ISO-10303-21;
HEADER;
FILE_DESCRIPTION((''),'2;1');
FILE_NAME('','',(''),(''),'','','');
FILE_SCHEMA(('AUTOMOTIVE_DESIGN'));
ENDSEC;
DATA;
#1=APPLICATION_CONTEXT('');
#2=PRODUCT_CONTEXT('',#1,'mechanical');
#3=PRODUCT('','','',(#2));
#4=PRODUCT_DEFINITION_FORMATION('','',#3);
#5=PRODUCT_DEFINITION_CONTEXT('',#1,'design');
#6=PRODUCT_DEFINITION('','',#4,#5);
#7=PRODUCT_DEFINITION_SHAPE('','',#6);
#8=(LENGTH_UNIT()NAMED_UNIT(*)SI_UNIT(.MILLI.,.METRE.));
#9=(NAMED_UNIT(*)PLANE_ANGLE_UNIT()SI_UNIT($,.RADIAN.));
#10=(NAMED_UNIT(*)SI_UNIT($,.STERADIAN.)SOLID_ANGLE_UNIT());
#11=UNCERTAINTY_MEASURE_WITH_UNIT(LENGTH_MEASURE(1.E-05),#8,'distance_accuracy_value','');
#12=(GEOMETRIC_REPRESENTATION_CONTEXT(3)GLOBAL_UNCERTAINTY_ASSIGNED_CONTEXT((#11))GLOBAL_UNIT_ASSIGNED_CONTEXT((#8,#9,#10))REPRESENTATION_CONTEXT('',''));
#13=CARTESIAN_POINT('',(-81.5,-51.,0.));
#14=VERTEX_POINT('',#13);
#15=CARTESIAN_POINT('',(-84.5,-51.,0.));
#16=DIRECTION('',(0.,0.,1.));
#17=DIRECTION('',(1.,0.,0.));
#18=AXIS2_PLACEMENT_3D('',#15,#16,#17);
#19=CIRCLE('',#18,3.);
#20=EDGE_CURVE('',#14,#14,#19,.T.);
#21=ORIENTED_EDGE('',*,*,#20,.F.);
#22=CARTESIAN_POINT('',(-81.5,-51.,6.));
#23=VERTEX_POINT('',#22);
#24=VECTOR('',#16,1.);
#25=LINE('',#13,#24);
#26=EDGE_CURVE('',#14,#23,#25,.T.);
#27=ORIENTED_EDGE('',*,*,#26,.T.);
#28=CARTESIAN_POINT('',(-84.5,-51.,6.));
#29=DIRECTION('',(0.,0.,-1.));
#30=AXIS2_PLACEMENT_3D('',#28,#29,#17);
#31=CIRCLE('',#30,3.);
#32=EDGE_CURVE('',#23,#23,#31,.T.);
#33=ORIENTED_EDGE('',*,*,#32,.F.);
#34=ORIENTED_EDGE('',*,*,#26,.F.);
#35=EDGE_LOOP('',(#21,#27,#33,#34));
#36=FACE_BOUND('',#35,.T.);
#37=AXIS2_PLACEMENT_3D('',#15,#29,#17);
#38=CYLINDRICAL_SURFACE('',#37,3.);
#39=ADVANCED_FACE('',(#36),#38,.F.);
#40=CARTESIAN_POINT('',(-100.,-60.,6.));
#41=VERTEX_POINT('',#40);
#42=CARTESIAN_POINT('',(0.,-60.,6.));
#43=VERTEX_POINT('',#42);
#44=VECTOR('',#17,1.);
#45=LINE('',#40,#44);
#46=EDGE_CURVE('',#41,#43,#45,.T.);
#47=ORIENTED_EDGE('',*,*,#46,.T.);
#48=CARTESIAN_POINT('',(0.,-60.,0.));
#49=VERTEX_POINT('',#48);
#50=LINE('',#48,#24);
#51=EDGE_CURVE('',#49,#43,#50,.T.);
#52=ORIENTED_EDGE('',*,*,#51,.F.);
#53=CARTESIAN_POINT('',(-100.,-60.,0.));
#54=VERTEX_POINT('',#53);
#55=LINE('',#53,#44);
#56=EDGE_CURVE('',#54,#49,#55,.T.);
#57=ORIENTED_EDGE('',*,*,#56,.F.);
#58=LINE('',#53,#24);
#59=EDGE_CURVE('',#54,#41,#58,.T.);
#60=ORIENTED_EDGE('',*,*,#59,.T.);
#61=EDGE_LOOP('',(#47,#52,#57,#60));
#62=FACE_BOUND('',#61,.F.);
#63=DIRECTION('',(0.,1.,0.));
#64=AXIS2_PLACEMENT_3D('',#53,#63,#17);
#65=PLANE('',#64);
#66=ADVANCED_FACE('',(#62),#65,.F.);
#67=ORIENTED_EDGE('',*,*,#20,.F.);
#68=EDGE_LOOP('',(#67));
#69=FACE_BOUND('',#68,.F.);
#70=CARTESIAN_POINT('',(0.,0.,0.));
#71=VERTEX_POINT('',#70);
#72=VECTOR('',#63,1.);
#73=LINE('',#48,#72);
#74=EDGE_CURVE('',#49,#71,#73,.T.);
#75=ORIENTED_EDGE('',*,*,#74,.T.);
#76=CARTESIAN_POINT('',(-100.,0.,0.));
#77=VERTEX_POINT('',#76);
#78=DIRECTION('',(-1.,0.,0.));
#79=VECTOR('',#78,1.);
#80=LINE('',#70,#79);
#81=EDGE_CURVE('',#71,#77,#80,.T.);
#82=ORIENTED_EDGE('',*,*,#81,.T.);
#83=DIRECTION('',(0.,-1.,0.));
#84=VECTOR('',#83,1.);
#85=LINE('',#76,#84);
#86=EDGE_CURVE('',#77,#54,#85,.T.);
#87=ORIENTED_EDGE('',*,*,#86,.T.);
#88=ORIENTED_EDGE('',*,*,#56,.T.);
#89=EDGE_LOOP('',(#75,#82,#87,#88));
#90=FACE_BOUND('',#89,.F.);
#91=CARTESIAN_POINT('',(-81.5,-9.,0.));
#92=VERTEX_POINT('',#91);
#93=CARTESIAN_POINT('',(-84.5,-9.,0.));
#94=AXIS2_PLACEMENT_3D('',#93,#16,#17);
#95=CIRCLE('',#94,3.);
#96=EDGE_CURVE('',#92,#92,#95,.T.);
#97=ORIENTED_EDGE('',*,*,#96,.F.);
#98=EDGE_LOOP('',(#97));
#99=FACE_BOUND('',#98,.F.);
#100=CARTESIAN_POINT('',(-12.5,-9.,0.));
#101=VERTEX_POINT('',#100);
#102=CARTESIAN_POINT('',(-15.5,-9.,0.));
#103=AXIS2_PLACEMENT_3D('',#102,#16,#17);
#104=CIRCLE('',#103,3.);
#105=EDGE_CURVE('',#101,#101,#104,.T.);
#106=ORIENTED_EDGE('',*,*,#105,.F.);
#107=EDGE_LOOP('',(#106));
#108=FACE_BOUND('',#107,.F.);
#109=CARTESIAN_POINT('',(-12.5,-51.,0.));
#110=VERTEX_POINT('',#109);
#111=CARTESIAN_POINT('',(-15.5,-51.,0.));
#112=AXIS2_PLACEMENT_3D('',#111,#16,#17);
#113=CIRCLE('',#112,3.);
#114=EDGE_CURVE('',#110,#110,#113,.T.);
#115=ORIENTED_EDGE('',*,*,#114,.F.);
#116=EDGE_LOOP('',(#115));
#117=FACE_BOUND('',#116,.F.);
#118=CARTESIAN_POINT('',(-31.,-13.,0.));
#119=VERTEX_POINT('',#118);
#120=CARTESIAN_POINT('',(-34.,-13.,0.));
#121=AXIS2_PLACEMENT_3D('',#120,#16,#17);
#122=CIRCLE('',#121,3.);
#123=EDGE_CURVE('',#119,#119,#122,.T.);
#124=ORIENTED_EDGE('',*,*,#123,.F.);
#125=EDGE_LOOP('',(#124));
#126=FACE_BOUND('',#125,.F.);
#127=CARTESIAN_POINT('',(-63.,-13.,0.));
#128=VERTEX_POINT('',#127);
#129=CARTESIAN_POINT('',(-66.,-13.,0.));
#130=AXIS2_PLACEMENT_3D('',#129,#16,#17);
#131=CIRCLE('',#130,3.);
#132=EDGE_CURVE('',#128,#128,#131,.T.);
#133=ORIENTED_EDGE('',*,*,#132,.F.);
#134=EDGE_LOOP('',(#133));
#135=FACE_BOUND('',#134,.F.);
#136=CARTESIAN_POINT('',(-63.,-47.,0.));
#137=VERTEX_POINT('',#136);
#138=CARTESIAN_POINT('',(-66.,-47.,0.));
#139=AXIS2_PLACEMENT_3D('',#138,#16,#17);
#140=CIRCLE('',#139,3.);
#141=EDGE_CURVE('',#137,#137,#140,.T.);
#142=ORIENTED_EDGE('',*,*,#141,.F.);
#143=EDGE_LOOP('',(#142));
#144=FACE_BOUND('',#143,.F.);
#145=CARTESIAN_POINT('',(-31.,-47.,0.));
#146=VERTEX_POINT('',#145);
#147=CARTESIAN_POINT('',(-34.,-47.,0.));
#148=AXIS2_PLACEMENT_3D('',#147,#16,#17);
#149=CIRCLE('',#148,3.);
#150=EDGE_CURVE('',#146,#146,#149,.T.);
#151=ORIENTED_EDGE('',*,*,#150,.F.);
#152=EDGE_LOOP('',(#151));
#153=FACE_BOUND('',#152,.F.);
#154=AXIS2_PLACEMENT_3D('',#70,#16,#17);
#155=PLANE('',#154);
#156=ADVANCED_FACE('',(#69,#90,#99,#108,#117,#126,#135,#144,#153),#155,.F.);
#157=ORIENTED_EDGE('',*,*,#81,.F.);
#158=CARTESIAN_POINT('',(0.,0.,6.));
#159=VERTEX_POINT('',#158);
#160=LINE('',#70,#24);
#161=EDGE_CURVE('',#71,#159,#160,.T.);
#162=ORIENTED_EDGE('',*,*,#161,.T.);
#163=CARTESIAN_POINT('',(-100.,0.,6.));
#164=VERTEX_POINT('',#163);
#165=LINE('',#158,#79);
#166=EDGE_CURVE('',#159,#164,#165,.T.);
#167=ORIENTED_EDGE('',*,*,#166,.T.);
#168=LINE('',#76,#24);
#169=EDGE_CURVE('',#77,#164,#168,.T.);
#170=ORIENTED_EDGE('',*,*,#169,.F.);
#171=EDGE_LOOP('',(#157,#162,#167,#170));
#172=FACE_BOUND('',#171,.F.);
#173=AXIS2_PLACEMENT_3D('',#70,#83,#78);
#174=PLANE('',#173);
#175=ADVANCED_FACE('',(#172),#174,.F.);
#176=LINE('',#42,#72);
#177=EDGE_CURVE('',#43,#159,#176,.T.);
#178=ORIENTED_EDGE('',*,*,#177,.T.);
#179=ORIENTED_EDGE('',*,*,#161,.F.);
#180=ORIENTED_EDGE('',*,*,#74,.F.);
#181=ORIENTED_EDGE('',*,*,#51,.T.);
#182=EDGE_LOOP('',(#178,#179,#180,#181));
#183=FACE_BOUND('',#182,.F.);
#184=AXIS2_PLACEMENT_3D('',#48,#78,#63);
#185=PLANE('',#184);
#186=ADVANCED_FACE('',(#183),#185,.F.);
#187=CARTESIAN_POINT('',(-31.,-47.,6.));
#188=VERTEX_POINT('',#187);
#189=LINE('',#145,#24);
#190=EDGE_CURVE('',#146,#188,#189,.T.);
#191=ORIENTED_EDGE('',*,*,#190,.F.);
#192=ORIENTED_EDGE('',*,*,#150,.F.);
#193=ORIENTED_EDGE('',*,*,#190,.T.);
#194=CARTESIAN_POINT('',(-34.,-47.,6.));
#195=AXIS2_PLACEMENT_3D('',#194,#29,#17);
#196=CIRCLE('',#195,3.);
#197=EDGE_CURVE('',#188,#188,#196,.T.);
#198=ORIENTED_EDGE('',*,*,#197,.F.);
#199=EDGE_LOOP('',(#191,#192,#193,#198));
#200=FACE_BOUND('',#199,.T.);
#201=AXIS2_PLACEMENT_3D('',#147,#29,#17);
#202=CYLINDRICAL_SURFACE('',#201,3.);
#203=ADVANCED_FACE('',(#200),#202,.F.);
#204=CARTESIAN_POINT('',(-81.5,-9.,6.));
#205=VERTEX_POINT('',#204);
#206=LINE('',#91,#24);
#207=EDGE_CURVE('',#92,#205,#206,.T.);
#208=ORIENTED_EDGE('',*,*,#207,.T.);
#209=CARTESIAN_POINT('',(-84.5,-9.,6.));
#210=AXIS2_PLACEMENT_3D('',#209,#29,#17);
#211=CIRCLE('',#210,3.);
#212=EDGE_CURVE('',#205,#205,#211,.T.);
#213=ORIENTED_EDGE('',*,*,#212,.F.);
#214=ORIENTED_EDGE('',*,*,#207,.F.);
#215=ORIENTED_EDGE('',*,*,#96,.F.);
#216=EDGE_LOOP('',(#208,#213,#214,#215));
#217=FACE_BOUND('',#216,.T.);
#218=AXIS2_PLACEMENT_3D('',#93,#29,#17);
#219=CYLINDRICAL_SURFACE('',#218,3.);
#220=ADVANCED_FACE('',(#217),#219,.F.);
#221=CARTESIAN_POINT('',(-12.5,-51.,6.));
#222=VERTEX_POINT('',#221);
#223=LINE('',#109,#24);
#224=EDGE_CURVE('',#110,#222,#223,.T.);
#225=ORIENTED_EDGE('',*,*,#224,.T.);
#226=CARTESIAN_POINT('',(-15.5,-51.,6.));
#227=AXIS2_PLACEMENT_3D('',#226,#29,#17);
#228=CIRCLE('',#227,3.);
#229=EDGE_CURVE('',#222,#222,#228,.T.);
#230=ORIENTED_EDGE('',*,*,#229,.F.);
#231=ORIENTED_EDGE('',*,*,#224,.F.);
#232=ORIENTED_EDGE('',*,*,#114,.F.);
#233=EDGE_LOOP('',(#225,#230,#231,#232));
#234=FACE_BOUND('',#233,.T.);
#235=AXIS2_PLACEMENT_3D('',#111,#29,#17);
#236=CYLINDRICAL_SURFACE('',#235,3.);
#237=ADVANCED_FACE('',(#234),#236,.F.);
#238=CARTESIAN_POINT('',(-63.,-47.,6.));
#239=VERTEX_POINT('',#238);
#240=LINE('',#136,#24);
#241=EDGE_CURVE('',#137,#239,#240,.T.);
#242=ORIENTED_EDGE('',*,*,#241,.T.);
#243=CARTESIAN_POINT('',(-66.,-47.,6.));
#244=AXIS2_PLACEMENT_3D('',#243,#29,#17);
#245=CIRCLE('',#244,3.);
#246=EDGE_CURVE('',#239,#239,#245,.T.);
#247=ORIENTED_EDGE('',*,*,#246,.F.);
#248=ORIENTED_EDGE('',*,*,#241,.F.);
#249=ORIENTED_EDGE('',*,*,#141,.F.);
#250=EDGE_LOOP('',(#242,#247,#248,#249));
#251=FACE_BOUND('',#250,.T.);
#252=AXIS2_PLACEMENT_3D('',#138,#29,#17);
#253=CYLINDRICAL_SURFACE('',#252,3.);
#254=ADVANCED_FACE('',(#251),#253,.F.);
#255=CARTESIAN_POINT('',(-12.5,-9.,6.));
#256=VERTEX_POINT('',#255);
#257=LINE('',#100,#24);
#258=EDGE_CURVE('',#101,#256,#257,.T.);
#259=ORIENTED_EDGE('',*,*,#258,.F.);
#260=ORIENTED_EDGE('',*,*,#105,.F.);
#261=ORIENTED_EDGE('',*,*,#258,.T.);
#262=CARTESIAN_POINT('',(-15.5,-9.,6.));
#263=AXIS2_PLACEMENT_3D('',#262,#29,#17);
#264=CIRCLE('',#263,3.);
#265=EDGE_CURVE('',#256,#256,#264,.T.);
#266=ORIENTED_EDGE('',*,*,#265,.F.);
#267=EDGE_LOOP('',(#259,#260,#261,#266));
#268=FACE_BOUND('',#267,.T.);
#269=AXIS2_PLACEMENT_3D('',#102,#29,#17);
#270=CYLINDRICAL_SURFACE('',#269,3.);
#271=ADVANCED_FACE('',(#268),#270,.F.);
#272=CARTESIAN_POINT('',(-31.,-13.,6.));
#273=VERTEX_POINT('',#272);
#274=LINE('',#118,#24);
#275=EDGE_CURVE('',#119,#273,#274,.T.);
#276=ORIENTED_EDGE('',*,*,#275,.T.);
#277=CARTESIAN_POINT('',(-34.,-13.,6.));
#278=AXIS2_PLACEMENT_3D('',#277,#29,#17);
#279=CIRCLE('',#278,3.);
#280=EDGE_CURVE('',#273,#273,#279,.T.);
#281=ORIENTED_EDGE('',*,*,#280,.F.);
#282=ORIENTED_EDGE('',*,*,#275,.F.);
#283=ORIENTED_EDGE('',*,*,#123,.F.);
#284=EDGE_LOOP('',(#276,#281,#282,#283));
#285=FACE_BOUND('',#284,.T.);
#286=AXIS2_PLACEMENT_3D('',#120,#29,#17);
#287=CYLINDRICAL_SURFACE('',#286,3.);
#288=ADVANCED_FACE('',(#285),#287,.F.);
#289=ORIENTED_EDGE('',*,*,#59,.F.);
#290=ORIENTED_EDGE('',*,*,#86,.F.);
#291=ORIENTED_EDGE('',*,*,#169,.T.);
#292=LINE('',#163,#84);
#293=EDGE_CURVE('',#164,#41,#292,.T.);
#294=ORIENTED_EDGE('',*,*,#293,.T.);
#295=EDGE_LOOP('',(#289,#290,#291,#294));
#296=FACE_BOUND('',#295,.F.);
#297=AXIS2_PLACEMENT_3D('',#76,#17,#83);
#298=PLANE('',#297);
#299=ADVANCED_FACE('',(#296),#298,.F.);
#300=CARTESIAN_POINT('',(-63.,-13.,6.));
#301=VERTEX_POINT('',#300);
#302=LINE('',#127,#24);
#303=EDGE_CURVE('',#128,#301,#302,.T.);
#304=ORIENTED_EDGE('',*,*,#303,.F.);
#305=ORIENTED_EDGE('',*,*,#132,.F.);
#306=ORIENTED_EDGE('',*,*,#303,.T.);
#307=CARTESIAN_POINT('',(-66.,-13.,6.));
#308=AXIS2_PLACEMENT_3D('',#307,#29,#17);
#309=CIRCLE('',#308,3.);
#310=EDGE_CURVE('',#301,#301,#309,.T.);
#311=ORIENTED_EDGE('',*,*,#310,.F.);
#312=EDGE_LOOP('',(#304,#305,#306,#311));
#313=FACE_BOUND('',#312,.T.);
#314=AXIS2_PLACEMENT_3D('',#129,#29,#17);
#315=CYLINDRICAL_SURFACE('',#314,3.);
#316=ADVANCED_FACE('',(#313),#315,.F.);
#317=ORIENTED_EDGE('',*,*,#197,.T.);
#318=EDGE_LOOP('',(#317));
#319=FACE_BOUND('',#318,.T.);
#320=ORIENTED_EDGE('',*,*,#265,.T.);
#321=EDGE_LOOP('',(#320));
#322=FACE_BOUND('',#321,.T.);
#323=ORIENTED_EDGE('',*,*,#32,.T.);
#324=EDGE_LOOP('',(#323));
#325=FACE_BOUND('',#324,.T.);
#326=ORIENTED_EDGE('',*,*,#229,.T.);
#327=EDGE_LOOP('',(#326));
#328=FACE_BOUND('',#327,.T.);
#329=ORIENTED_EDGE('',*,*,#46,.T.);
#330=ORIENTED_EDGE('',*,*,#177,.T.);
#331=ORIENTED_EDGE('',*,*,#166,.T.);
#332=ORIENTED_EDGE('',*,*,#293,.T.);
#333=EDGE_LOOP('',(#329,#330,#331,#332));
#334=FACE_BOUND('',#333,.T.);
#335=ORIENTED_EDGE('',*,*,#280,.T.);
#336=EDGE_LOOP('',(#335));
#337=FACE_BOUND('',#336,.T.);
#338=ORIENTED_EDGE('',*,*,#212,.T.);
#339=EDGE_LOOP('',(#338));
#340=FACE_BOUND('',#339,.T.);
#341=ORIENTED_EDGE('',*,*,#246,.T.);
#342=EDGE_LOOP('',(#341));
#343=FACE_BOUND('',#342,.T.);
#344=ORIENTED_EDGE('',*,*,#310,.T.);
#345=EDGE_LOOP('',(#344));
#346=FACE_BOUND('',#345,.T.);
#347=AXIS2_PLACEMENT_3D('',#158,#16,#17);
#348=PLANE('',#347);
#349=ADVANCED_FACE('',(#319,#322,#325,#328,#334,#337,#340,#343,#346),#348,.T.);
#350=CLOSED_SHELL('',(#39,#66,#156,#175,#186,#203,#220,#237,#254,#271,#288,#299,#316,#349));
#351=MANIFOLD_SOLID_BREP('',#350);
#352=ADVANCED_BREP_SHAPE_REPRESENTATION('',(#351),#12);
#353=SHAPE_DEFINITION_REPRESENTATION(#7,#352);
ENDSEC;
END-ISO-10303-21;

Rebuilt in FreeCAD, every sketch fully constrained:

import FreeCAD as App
import Part
import Sketcher


def add_polygon(sketch, points):
    """Adds a closed chain of lines whose ends are joined by coincident constraints."""
    first, n = sketch.GeometryCount, len(points)
    for a, b in zip(points, points[1:] + points[:1]):
        sketch.addGeometry(Part.LineSegment(App.Vector(*a, 0), App.Vector(*b, 0)), False)
    for i in range(n):
        sketch.addConstraint(Sketcher.Constraint("Coincident", first + i, 2, first + (i + 1) % n, 1))

doc = App.newDocument("Part")
params = doc.addObject("Spreadsheet::Sheet", "Params")
for row, (alias, value) in enumerate([
    ("sketch1_diameter", "6 mm"),
    ("sketch1_width", "100 mm"),
    ("sketch1_height", "60 mm"),
    ("pad1_length", "6 mm"),
], start=1):
    params.set(f"A{row}", alias)
    params.set(f"B{row}", "=" + value)
    params.setAlias(f"B{row}", alias)

body = doc.addObject("PartDesign::Body", "Body")

sketch1 = body.newObject("Sketcher::SketchObject", "Sketch")
sketch1.AttachmentSupport = (doc.getObject("XY_Plane"), [""])
sketch1.MapMode = "FlatFace"
add_polygon(sketch1, [(0, -60), (0, 0), (-100, 0), (-100, -60)])
sketch1.addGeometry(Part.Circle(App.Vector(-15.5, -9, 0), App.Vector(0, 0, 1), 3), False)
sketch1.addGeometry(Part.Circle(App.Vector(-84.5, -9, 0), App.Vector(0, 0, 1), 3), False)
sketch1.addGeometry(Part.Circle(App.Vector(-84.5, -51, 0), App.Vector(0, 0, 1), 3), False)
sketch1.addGeometry(Part.Circle(App.Vector(-15.5, -51, 0), App.Vector(0, 0, 1), 3), False)
sketch1.addGeometry(Part.Circle(App.Vector(-66, -47, 0), App.Vector(0, 0, 1), 3), False)
sketch1.addGeometry(Part.Circle(App.Vector(-34, -47, 0), App.Vector(0, 0, 1), 3), False)
sketch1.addGeometry(Part.Circle(App.Vector(-34, -13, 0), App.Vector(0, 0, 1), 3), False)
sketch1.addGeometry(Part.Circle(App.Vector(-66, -13, 0), App.Vector(0, 0, 1), 3), False)
sketch1.addConstraint([
    Sketcher.Constraint("Vertical", 0),
    Sketcher.Constraint("Horizontal", 1),
    Sketcher.Constraint("Vertical", 2),
    Sketcher.Constraint("Horizontal", 3),
    Sketcher.Constraint("Coincident", 0, 2, -1, 1),
    Sketcher.Constraint("Equal", 4, 5),
    Sketcher.Constraint("Equal", 5, 6),
    Sketcher.Constraint("Equal", 6, 7),
    Sketcher.Constraint("Equal", 7, 8),
    Sketcher.Constraint("Equal", 8, 9),
    Sketcher.Constraint("Equal", 9, 10),
    Sketcher.Constraint("Equal", 10, 11),
    Sketcher.Constraint("Horizontal", 4, 3, 5, 3),
    Sketcher.Constraint("Horizontal", 6, 3, 7, 3),
    Sketcher.Constraint("Horizontal", 8, 3, 9, 3),
    Sketcher.Constraint("Horizontal", 10, 3, 11, 3),
    Sketcher.Constraint("Vertical", 5, 3, 6, 3),
    Sketcher.Constraint("Vertical", 4, 3, 7, 3),
    Sketcher.Constraint("Vertical", 9, 3, 10, 3),
    Sketcher.Constraint("Vertical", 8, 3, 11, 3),
    Sketcher.Constraint("Diameter", 4, 6.0),
    Sketcher.Constraint("DistanceX", 1, 2, 1, 1, 100.0),
    Sketcher.Constraint("DistanceY", 0, 1, 0, 2, 60.0),
    Sketcher.Constraint("DistanceY", 4, 3, -1, 1, 9.0),
    Sketcher.Constraint("DistanceX", 9, 3, -1, 1, 34.0),
    Sketcher.Constraint("DistanceY", 10, 3, -1, 1, 13.0),
    Sketcher.Constraint("DistanceX", 5, 3, 4, 3, 69.0),
    Sketcher.Constraint("DistanceY", 6, 3, 5, 3, 42.0),
    Sketcher.Constraint("DistanceX", 8, 3, 9, 3, 32.0),
    Sketcher.Constraint("DistanceY", 9, 3, 10, 3, 34.0),
    Sketcher.Constraint("DistanceX", 4, 3, -1, 1, 15.5),
])
sketch1.setExpression("Constraints[24]", "Params.sketch1_diameter")
sketch1.setExpression("Constraints[25]", "Params.sketch1_width")
sketch1.setExpression("Constraints[26]", "Params.sketch1_height")
pad1 = body.newObject("PartDesign::Pad", "Pad")
pad1.Profile = sketch1
pad1.setExpression("Length", "Params.pad1_length")

doc.recompute()
